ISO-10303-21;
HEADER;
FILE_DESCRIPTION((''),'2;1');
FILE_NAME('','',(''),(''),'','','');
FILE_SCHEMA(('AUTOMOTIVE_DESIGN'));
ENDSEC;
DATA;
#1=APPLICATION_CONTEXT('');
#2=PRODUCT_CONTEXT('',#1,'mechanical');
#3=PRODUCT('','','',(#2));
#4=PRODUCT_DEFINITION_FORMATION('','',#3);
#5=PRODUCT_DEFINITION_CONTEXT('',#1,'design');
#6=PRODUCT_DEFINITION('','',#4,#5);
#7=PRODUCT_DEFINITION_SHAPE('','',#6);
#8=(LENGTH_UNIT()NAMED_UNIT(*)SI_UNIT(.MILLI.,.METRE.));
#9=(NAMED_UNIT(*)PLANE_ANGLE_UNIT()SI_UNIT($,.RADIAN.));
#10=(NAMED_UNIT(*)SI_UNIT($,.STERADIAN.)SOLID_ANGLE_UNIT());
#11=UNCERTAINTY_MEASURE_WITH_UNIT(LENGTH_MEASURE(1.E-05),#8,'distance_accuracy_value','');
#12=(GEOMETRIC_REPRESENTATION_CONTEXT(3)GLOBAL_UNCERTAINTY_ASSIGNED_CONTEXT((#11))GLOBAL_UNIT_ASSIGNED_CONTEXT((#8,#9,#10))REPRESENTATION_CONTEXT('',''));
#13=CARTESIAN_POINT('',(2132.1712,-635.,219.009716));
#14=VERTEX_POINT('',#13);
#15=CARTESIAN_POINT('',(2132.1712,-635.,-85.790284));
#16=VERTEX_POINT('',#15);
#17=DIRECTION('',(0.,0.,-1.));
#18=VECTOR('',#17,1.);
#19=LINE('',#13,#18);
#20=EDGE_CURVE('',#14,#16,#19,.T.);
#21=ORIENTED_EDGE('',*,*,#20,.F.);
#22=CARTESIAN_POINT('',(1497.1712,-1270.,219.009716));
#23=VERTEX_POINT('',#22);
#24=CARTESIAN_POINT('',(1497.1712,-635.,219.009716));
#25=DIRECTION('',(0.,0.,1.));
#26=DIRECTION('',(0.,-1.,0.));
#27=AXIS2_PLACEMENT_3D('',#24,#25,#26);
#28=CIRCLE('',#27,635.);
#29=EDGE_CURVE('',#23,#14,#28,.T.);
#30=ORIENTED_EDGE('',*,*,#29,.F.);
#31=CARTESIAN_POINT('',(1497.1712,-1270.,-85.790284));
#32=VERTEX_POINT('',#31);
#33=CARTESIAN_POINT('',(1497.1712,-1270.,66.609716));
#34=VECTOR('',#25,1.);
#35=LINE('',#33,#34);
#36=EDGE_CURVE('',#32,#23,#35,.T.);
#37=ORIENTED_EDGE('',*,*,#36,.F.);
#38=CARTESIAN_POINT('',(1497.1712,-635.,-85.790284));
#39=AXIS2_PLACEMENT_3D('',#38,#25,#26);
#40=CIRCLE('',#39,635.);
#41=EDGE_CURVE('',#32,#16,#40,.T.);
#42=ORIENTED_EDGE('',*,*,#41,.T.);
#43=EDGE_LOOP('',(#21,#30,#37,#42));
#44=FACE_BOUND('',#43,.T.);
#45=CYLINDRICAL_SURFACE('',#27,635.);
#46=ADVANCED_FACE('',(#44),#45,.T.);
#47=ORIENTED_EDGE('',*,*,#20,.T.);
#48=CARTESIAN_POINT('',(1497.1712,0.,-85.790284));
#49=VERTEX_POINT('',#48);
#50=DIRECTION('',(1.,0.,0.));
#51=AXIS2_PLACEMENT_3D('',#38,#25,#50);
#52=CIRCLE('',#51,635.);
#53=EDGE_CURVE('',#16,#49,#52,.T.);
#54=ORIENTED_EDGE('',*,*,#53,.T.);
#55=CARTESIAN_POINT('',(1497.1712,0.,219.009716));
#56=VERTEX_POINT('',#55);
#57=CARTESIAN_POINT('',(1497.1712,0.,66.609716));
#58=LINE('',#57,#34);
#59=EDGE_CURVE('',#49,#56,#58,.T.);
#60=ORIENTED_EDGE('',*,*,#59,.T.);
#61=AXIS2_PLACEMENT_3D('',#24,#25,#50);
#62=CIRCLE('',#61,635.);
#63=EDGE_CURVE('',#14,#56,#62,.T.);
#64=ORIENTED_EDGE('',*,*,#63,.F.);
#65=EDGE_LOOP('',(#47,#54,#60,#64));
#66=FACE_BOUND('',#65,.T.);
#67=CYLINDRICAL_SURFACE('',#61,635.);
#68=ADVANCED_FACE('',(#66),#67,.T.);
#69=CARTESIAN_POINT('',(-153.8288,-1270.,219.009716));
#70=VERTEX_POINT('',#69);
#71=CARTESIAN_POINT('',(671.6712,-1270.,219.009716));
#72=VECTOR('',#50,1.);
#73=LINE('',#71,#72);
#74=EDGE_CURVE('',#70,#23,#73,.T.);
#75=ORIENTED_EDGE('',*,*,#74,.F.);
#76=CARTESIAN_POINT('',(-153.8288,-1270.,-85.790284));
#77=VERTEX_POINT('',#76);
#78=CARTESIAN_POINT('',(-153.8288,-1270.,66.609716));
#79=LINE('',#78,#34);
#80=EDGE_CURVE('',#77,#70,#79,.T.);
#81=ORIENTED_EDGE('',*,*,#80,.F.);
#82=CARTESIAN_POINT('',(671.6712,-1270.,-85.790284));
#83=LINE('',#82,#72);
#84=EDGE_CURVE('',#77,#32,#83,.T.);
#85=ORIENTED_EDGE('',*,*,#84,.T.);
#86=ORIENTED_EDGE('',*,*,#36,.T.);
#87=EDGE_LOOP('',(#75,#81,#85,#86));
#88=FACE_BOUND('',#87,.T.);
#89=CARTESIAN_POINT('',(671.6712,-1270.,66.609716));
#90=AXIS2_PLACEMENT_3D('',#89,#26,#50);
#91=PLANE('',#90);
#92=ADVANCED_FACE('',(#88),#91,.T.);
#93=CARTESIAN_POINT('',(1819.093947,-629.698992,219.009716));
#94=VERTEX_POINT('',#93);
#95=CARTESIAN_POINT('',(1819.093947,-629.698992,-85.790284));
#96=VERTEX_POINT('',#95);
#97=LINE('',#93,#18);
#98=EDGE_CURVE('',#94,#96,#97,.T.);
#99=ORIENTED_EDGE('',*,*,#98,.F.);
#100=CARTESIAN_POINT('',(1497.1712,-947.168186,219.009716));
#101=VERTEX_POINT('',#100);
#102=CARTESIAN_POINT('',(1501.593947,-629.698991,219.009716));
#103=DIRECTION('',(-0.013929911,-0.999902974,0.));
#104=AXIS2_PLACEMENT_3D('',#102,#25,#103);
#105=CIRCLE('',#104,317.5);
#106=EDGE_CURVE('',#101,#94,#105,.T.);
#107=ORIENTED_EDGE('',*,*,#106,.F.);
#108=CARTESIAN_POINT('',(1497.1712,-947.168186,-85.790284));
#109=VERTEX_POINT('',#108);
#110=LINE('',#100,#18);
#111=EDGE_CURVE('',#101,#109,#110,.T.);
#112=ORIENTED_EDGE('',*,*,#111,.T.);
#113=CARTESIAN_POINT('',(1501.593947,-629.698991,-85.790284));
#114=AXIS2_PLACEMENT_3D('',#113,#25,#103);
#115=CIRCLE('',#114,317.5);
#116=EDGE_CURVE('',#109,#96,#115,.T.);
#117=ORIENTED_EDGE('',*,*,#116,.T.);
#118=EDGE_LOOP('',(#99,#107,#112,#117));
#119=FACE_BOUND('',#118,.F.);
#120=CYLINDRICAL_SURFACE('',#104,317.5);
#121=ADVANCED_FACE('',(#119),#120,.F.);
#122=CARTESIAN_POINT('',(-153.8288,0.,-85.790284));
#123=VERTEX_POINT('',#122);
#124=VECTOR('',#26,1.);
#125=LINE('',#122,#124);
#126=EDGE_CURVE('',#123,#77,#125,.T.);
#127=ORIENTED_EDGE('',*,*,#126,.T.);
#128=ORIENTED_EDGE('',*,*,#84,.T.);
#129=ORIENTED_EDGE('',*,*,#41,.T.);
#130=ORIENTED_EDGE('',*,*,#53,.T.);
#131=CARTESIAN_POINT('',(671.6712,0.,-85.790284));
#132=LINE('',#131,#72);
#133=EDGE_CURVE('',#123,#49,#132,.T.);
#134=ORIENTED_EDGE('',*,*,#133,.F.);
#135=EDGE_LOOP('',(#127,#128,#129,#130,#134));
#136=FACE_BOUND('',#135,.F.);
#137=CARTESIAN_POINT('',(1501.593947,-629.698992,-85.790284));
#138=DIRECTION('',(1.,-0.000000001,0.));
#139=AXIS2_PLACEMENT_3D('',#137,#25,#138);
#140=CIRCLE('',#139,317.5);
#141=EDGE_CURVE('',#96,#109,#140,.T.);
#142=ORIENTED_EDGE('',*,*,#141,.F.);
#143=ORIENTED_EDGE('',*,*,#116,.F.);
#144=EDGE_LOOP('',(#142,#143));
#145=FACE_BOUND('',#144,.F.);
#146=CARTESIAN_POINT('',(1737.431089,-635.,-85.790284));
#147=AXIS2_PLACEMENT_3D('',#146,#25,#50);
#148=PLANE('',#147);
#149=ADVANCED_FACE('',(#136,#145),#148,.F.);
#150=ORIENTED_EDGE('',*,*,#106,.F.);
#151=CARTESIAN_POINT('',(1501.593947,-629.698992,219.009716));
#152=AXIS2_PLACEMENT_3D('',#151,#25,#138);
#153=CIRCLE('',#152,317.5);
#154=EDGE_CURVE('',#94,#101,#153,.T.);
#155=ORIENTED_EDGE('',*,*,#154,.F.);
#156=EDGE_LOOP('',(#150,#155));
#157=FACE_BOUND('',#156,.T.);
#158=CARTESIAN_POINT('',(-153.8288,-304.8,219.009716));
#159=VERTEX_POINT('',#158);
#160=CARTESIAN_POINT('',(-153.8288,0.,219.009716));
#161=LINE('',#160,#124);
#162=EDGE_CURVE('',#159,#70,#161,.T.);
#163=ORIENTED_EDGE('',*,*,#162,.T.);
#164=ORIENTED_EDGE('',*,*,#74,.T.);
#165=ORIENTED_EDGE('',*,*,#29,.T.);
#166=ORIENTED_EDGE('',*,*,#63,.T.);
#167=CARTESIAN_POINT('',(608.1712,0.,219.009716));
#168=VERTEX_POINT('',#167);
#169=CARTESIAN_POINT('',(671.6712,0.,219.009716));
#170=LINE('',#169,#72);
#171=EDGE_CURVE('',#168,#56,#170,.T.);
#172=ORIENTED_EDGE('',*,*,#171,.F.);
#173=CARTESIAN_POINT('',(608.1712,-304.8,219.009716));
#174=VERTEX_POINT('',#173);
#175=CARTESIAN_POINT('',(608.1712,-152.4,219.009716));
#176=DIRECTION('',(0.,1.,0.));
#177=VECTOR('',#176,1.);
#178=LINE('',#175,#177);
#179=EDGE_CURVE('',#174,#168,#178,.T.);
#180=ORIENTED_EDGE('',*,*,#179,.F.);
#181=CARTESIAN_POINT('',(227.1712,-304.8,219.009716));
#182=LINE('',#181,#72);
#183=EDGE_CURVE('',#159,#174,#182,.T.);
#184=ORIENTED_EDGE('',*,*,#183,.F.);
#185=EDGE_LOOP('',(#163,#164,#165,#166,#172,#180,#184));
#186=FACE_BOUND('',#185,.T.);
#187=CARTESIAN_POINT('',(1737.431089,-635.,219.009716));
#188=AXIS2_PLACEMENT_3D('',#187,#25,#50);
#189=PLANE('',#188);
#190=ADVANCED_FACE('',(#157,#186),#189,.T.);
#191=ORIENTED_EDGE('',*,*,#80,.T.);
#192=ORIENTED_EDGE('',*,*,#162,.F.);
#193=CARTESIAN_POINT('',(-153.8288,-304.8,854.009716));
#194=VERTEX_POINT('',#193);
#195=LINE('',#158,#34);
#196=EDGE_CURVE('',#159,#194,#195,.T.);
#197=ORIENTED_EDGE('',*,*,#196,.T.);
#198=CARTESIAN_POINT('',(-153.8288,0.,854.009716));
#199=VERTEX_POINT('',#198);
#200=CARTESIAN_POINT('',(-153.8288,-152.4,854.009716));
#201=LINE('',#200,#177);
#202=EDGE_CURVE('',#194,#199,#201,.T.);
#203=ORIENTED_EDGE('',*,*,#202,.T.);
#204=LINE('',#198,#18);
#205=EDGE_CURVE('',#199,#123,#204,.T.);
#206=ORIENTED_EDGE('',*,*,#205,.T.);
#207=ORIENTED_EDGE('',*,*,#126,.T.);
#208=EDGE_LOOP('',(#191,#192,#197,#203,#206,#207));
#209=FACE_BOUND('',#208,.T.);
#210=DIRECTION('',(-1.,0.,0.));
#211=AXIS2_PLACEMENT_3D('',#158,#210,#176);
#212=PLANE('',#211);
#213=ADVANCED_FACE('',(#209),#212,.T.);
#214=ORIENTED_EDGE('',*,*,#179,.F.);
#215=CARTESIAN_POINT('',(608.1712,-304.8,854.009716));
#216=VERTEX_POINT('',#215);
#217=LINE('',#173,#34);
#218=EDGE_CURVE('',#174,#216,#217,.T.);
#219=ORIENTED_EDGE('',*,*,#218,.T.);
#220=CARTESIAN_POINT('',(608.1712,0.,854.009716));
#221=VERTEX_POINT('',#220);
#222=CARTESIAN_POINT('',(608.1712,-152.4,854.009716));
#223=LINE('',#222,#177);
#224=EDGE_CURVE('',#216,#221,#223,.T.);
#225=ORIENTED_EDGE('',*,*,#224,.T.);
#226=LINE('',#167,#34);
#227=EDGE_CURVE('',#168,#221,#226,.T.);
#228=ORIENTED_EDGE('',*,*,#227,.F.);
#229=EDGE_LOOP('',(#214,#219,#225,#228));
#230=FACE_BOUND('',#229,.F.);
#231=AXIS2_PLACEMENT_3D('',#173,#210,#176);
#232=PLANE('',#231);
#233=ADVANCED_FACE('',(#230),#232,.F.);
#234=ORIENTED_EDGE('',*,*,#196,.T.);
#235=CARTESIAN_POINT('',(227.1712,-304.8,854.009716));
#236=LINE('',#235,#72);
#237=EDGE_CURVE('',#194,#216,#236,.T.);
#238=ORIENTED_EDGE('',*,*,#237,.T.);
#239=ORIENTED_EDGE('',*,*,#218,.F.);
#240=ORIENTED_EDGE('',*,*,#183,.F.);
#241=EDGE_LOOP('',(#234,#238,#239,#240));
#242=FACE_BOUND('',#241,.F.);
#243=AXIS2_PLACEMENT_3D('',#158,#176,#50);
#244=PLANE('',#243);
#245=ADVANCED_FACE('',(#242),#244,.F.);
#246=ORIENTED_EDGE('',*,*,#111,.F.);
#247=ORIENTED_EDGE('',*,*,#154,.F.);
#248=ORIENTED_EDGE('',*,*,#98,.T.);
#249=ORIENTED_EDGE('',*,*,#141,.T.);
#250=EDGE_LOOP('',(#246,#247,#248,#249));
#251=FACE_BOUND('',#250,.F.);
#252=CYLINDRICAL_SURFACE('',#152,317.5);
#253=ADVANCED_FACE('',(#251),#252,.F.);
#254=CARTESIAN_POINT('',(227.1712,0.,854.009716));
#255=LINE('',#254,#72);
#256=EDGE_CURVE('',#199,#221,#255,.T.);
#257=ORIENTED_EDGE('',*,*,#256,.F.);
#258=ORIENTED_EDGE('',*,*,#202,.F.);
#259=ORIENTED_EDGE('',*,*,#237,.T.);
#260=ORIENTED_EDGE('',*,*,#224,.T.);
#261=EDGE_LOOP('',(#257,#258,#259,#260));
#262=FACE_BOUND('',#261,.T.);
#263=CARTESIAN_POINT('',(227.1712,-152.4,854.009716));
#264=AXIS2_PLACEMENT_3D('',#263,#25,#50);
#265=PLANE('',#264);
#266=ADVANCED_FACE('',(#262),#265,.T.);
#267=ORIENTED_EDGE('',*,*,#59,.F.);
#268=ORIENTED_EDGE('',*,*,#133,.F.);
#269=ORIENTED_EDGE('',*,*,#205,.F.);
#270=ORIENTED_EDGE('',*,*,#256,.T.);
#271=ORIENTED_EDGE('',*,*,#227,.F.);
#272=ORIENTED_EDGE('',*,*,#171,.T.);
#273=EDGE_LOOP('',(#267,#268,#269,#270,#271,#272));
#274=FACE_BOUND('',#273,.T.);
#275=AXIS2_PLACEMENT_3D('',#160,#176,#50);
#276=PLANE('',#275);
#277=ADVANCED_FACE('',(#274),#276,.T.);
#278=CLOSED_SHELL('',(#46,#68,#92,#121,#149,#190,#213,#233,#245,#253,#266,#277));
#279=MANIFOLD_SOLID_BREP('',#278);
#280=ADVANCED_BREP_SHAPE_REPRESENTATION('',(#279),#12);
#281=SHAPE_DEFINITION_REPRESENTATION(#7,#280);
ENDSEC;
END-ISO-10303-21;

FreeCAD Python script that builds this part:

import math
import FreeCAD as App
import Part
import Sketcher
Q = App.Units.Quantity


def add_polygon(sketch, points):
    """Adds a closed chain of lines whose ends are joined by coincident constraints."""
    first, n = sketch.GeometryCount, len(points)
    for a, b in zip(points, points[1:] + points[:1]):
        sketch.addGeometry(Part.LineSegment(App.Vector(*a, 0), App.Vector(*b, 0)), False)
    for i in range(n):
        sketch.addConstraint(Sketcher.Constraint("Coincident", first + i, 2, first + (i + 1) % n, 1))

doc = App.newDocument("Part")
body = doc.addObject("PartDesign::Body", "Body")

sketch1 = doc.addObject("Sketcher::SketchObject", "Sketch")
body.addObject(sketch1)
sketch1.AttachmentSupport = (doc.XZ_Plane, [""])
sketch1.MapMode = "FlatFace"
add_polygon(sketch1, [(-153.8288, 219.009716), (-153.8288, -85.790284), (1497.1712, -85.790284), (1497.1712, 219.009716)])
sketch1.addConstraint([
    Sketcher.Constraint("Vertical", 0),
    Sketcher.Constraint("Horizontal", 1),
    Sketcher.Constraint("Vertical", 2),
    Sketcher.Constraint("Horizontal", 3),
    Sketcher.Constraint("DistanceX", 1, 1, 1, 2, Q("65 in")),
    Sketcher.Constraint("DistanceY", 0, 2, 0, 1, Q("12 in")),
    Sketcher.Constraint("DistanceX", 0, 2, -1, 1, 153.8288),
    Sketcher.Constraint("DistanceY", 0, 2, -1, 1, 85.790284),
])
pad1 = doc.addObject("PartDesign::Pad", "Pad")
body.addObject(pad1)
pad1.Profile = sketch1
pad1.Length = Q("50 in")

sketch2 = doc.addObject("Sketcher::SketchObject", "Sketch001")
body.addObject(sketch2)
sketch2.AttachmentSupport = (doc.XY_Plane, [""])
sketch2.MapMode = "FlatFace"
sketch2.AttachmentOffset = App.Placement(App.Vector(0, 0, 219.009716), App.Rotation())
add_polygon(sketch2, [(-153.8288, 0), (-153.8288, -304.8), (608.1712, -304.8), (608.1712, 0)])
sketch2.addConstraint([
    Sketcher.Constraint("Vertical", 0),
    Sketcher.Constraint("Horizontal", 1),
    Sketcher.Constraint("Vertical", 2),
    Sketcher.Constraint("Horizontal", 3),
    Sketcher.Constraint("PointOnObject", 2, 2, -1),
    Sketcher.Constraint("DistanceX", 1, 1, 1, 2, Q("30 in")),
    Sketcher.Constraint("DistanceY", 0, 2, 0, 1, Q("12 in")),
    Sketcher.Constraint("DistanceX", 0, 2, -1, 1, 153.8288),
])
pad2 = doc.addObject("PartDesign::Pad", "Pad001")
body.addObject(pad2)
pad2.Profile = sketch2
pad2.Length = Q("25 in")

sketch3 = doc.addObject("Sketcher::SketchObject", "Sketch002")
body.addObject(sketch3)
sketch3.AttachmentSupport = (doc.XY_Plane, [""])
sketch3.MapMode = "FlatFace"
sketch3.AttachmentOffset = App.Placement(App.Vector(0, 0, 219.009716), App.Rotation())
sketch3.addGeometry([
    Part.ArcOfCircle(Part.Circle(App.Vector(1497.1712, -635, 0), App.Vector(0, 0, 1), 635), math.radians(-90), math.radians(0)),
    Part.ArcOfCircle(Part.Circle(App.Vector(1497.1712, -635, 0), App.Vector(0, 0, 1), 635), math.radians(0), math.radians(90)),
    Part.LineSegment(App.Vector(1497.1712, 0, 0), App.Vector(1497.1712, -1270, 0)),
], False)
sketch3.addConstraint([
    Sketcher.Constraint("Coincident", 0, 2, 1, 1),
    Sketcher.Constraint("Coincident", 1, 2, 2, 1),
    Sketcher.Constraint("Coincident", 2, 2, 0, 1),
    Sketcher.Constraint("Vertical", 2),
    Sketcher.Constraint("Coincident", 1, 3, 0, 3),
    Sketcher.Constraint("PointOnObject", 1, 2, -1),
    Sketcher.Constraint("Horizontal", 1, 3, 0, 2),
    Sketcher.Constraint("Radius", 0, Q("25 in")),
    Sketcher.Constraint("DistanceX", 2, 2, 0, 2, Q("25 in")),
    Sketcher.Constraint("DistanceX", -1, 1, 0, 3, 1497.1712),
])
pad3 = doc.addObject("PartDesign::Pad", "Pad002")
body.addObject(pad3)
pad3.Profile = sketch3
pad3.Length = Q("12 in")
pad3.Reversed = True

sketch4 = doc.addObject("Sketcher::SketchObject", "Sketch003")
body.addObject(sketch4)
sketch4.AttachmentSupport = (doc.XY_Plane, [""])
sketch4.MapMode = "FlatFace"
sketch4.AttachmentOffset = App.Placement(App.Vector(0, 0, 219.009716), App.Rotation())
sketch4.addGeometry([
    Part.ArcOfCircle(Part.Circle(App.Vector(1501.593947, -629.698991, 0), App.Vector(0, 0, 1), 317.5), math.radians(-90.798151), math.radians(0)),
    Part.ArcOfCircle(Part.Circle(App.Vector(1501.593947, -629.698992, 0), App.Vector(0, 0, 1), 317.5), math.radians(0), math.radians(269.201849)),
], False)
sketch4.addConstraint([
    Sketcher.Constraint("Tangent", 0, 1, 1, 2),
    Sketcher.Constraint("Coincident", 1, 1, 0, 2),
    Sketcher.Constraint("Horizontal", 0, 3, 1, 1),
    Sketcher.Constraint("Radius", 0, Q("12.5 in")),
    Sketcher.Constraint("DistanceX", -1, 1, 0, 1, 1497.1712),
    Sketcher.Constraint("DistanceY", 0, 3, -1, 1, 629.698991),
    Sketcher.Constraint("DistanceX", -1, 1, 0, 3, 1501.593947),
])
pocket1 = doc.addObject("PartDesign::Pocket", "Pocket")
body.addObject(pocket1)
pocket1.Profile = sketch4
pocket1.Length = Q("22.7 in")

doc.recompute()
